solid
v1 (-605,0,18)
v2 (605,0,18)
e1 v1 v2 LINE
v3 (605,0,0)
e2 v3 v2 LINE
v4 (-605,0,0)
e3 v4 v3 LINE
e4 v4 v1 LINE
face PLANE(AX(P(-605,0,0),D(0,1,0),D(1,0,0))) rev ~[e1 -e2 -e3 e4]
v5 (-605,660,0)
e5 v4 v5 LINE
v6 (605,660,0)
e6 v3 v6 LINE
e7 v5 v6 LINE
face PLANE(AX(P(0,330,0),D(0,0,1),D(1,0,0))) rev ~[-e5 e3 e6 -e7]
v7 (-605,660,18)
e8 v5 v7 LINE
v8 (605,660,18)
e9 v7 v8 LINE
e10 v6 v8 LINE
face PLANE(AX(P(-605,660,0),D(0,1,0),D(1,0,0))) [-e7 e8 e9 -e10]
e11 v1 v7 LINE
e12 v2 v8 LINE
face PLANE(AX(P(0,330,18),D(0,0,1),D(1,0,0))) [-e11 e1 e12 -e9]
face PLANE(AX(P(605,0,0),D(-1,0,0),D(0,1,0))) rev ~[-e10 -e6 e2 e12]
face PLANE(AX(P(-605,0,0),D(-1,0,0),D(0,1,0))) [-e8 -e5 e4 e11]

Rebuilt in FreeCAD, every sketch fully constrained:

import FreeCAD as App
import Part
import Sketcher
from FreeCAD import Vector


def add_polygon(sketch, points):
    """Adds a closed chain of lines whose ends are joined by coincident constraints."""
    first, n = sketch.GeometryCount, len(points)
    for a, b in zip(points, points[1:] + points[:1]):
        sketch.addGeometry(Part.LineSegment(App.Vector(*a, 0), App.Vector(*b, 0)), False)
    for i in range(n):
        sketch.addConstraint(Sketcher.Constraint("Coincident", first + i, 2, first + (i + 1) % n, 1))

doc = App.newDocument("Part")
body = doc.addObject("PartDesign::Body", "Body")

# Sketch on XY plane
sketch1 = body.newObject("Sketcher::SketchObject", "Sketch")
sketch1.AttachmentSupport = (doc.getObject("XY_Plane"), [""])
sketch1.MapMode = "FlatFace"
add_polygon(sketch1, [(-605, 660), (-605, 0), (605, 0), (605, 660)])  # lines 0-3
sketch1.addConstraint(Sketcher.Constraint("Vertical", 0))
sketch1.addConstraint(Sketcher.Constraint("Horizontal", 1))
sketch1.addConstraint(Sketcher.Constraint("Vertical", 2))
sketch1.addConstraint(Sketcher.Constraint("Horizontal", 3))
sketch1.addConstraint(Sketcher.Constraint("Symmetric", 0, 2, 1, 2, -1, 1))
sketch1.addConstraint(Sketcher.Constraint("DistanceX", 1, 1, 1, 2, 1210.0))
sketch1.addConstraint(Sketcher.Constraint("DistanceY", 0, 2, 0, 1, 660.0))
pad1 = body.newObject("PartDesign::Pad", "Pad")
pad1.Profile = sketch1
pad1.Length = 18

doc.recompute()
